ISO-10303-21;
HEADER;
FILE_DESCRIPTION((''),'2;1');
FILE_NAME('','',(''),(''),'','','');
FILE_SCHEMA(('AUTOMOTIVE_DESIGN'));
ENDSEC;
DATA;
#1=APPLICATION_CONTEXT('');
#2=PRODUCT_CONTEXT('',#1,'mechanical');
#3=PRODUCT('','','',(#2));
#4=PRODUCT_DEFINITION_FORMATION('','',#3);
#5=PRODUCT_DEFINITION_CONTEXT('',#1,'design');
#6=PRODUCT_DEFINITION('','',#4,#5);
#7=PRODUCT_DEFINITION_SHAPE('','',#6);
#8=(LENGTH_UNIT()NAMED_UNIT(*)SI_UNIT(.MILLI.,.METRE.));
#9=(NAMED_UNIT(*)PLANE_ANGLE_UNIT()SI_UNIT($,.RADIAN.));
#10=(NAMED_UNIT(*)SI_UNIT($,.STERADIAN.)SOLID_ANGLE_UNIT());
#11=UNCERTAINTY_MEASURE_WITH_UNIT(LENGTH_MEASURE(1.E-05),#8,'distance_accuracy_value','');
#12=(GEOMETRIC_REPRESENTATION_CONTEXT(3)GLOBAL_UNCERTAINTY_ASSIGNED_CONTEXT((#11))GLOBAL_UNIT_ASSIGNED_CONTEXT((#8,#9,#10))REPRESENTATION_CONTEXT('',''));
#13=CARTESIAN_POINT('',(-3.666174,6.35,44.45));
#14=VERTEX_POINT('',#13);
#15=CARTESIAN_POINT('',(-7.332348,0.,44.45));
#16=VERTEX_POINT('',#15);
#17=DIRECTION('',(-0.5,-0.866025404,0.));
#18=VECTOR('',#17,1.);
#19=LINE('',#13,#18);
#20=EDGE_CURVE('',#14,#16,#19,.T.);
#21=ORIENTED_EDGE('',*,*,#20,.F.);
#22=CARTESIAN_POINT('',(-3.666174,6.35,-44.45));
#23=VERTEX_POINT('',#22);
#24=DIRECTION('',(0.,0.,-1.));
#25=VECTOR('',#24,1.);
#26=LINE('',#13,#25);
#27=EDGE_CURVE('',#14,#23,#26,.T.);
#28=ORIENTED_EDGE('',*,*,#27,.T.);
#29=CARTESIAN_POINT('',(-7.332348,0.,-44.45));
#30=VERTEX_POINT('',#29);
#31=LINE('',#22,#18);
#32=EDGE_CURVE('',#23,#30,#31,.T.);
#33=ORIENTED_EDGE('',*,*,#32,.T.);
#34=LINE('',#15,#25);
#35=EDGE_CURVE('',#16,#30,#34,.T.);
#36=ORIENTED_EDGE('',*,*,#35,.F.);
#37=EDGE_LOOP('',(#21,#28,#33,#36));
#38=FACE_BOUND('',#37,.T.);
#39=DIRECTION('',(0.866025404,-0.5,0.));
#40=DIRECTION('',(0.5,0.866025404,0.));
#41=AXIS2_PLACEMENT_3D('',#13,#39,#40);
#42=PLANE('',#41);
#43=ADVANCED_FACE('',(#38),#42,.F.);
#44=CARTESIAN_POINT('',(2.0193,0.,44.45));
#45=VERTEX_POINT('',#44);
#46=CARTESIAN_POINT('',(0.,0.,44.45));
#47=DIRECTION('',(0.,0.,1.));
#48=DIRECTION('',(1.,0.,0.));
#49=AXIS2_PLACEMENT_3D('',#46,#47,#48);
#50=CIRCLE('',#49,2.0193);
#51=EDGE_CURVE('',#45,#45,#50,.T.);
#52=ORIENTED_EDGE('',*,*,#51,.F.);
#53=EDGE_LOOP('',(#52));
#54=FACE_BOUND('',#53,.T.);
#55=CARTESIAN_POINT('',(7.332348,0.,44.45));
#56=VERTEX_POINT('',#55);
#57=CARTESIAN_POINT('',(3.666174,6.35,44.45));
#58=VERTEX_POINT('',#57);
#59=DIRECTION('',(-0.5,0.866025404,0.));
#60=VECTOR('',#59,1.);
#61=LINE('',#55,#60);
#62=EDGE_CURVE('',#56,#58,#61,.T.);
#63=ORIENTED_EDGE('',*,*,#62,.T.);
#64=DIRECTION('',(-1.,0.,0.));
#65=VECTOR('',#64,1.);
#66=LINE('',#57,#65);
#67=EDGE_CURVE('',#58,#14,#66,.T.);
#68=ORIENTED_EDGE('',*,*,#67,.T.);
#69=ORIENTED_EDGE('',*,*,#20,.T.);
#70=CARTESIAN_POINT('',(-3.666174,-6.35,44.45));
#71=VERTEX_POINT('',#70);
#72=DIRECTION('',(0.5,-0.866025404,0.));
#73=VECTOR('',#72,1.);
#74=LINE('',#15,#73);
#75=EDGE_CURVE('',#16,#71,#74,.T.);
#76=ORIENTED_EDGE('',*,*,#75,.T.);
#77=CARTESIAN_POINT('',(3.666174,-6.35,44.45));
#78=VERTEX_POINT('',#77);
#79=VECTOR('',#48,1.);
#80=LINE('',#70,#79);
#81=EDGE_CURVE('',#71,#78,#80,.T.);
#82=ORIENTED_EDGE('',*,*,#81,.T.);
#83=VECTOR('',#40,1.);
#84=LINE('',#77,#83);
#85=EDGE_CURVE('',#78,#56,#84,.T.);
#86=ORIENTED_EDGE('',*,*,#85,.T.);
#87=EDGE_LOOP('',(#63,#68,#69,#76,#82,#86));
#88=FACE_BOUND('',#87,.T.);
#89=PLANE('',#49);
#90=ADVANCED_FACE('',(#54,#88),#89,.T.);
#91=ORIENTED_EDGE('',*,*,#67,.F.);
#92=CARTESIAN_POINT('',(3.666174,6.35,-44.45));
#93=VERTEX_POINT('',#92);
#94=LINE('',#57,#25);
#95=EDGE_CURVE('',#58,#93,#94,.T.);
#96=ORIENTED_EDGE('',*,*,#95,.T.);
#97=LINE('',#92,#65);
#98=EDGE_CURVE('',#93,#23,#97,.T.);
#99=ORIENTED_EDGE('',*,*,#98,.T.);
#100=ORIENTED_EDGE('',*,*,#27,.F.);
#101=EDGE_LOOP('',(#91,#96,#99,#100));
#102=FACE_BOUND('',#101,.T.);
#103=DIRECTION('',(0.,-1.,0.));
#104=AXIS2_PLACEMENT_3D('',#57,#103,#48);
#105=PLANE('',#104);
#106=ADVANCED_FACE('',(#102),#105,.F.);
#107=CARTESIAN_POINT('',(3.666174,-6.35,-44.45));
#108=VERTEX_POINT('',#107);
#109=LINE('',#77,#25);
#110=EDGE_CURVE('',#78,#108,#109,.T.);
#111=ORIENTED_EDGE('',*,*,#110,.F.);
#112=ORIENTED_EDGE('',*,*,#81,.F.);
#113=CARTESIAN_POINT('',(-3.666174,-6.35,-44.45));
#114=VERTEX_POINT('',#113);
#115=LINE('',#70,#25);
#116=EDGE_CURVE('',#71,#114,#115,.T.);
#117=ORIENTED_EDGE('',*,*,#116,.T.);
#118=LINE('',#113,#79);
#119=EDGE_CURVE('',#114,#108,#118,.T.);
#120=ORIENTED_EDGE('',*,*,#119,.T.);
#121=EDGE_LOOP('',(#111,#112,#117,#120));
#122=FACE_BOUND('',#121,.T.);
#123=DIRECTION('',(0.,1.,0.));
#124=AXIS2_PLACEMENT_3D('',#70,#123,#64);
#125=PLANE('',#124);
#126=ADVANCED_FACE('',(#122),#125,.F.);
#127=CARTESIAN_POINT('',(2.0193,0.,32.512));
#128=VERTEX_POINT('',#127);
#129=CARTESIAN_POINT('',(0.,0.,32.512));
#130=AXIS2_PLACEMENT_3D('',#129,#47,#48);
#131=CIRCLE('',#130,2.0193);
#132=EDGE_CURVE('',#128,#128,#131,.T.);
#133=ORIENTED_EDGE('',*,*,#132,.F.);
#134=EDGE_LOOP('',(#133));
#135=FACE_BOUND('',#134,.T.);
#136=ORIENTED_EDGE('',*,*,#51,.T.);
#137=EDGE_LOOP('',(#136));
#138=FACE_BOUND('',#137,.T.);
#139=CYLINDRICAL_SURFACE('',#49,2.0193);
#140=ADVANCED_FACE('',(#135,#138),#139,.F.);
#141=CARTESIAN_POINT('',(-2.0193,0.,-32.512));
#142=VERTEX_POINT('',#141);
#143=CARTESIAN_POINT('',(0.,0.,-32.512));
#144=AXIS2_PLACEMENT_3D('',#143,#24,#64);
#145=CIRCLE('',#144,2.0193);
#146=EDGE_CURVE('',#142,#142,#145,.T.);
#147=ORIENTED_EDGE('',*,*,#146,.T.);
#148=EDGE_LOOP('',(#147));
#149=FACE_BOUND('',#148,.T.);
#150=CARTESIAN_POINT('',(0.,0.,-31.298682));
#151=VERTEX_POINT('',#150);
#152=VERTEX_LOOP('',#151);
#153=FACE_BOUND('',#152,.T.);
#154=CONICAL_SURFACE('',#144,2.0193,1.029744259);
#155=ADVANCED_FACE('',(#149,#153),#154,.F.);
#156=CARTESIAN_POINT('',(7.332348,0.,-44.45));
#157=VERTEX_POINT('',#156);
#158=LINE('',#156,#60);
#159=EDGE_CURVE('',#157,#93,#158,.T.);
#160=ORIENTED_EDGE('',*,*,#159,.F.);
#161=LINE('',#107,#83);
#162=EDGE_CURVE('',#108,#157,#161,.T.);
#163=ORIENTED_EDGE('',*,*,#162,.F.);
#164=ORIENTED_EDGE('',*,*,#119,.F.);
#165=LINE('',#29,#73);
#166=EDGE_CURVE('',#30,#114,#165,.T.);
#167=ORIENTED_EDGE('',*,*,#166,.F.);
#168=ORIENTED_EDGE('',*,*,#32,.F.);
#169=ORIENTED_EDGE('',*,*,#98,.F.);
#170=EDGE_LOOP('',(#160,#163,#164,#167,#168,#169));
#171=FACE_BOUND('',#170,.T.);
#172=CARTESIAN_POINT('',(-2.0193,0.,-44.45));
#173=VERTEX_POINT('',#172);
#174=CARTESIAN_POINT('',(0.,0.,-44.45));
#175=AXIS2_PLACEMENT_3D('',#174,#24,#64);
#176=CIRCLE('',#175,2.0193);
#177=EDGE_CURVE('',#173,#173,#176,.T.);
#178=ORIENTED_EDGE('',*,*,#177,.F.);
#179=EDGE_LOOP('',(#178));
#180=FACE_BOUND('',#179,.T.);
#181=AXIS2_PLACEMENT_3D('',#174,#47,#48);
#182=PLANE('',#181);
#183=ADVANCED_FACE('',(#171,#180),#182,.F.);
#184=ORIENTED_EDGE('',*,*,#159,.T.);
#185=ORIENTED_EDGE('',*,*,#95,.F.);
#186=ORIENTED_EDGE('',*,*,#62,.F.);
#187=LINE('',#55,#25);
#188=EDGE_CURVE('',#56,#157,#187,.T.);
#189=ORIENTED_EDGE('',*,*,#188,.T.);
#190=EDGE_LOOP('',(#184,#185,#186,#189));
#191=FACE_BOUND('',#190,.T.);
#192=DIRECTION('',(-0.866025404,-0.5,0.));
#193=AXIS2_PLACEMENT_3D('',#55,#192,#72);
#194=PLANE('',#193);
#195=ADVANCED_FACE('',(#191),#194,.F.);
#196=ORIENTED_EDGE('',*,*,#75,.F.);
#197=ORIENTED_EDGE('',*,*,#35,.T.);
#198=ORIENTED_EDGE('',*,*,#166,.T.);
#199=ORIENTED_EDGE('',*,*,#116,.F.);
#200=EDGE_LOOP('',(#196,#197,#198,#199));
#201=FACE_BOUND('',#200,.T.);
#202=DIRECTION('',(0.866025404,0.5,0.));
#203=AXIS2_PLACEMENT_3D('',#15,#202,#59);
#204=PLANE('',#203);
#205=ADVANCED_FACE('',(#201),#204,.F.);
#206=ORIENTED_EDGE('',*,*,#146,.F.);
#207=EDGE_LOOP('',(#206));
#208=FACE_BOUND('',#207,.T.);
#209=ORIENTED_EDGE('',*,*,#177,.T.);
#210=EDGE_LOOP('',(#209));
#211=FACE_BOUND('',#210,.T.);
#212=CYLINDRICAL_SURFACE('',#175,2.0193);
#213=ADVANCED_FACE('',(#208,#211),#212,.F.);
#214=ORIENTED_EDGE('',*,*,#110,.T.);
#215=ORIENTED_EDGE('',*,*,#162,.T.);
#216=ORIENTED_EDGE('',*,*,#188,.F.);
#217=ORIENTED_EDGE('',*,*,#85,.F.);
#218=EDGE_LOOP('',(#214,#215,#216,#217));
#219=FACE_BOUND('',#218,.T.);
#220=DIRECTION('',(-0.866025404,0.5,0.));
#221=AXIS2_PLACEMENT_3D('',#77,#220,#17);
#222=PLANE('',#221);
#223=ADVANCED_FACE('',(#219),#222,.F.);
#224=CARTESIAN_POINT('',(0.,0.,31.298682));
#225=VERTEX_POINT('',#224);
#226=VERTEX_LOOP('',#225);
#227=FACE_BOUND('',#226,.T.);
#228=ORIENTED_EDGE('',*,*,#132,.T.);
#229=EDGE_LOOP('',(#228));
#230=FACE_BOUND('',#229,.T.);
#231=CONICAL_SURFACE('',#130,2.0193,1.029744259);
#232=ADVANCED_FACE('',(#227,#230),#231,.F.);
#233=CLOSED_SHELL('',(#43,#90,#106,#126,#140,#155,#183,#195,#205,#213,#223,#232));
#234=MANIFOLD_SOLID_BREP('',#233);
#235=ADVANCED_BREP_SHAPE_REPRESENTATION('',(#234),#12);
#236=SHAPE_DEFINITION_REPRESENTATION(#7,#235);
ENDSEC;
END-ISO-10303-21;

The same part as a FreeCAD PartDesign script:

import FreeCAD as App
import Part
import Sketcher

V = App.Vector
Q = App.Units.Quantity


def add_polygon(sketch, points):
    """Adds a closed chain of lines whose ends are joined by coincident constraints."""
    first, n = sketch.GeometryCount, len(points)
    for a, b in zip(points, points[1:] + points[:1]):
        sketch.addGeometry(Part.LineSegment(App.Vector(*a, 0), App.Vector(*b, 0)), False)
    for i in range(n):
        sketch.addConstraint(Sketcher.Constraint("Coincident", first + i, 2, first + (i + 1) % n, 1))

doc = App.newDocument("Part")
body = doc.addObject("PartDesign::Body", "Body")

# Sketch on XY plane
sketch1 = body.newObject("Sketcher::SketchObject", "Sketch")
sketch1.AttachmentSupport = (doc.getObject("XY_Plane"), [""])
sketch1.MapMode = "FlatFace"
add_polygon(sketch1, [(7, 0), (4, 6), (-4, 6), (-7, 0), (-4, -6), (4, -6)])  # lines 0-5
sketch1.addConstraint([
    Sketcher.Constraint("Horizontal", 1),
    Sketcher.Constraint("Horizontal", 4),
    Sketcher.Constraint("Symmetric", 0, 2, 3, 2, -1, 1),
    Sketcher.Constraint("Symmetric", 2, 2, 5, 2, -1, 1),
    Sketcher.Constraint("PointOnObject", 2, 2, -1),
    Sketcher.Constraint("Parallel", 2, 5),
    Sketcher.Constraint("Vertical", 1, 2, 3, 2),
    Sketcher.Constraint("Angle", 0, Q("120 deg")),
    Sketcher.Constraint("DistanceY", 3, 2, 1, 2, Q("0.5 in")),
    Sketcher.Constraint("DistanceX", 1, 2, 1, 1, Q("7.332348 mm")),
])
pad1 = body.newObject("PartDesign::Pad", "Pad")
pad1.Profile = sketch1
pad1.Length = Q("3.5 in")
pad1.Midplane = True

# Sketch on XY plane
sketch2 = body.newObject("Sketcher::SketchObject", "Sketch001")
sketch2.AttachmentSupport = (doc.getObject("XY_Plane"), [""])
sketch2.MapMode = "FlatFace"
sketch2.AttachmentOffset = App.Placement(V(0, 0, 1.75 * 25.4), App.Rotation())
sketch2.addGeometry(Part.Circle(V(0, 0, 0), V(0, 0, 1), 2), False)
sketch2.addConstraint([
    Sketcher.Constraint("Coincident", 0, 3, -1, 1),
    Sketcher.Constraint("Diameter", 0, Q("0.159 in")),
])
doc.recompute()
hole = body.newObject("PartDesign::Hole", "Hole")
hole.Profile = sketch2
hole.ThreadType = "None"
hole.Diameter = Q("0.159 in")
hole.DepthType = "Dimension"
hole.Depth = Q("0.47 in")
hole.DrillPoint = "Angled"
hole.DrillPointAngle = 118

# Sketch on XY plane
sketch3 = body.newObject("Sketcher::SketchObject", "Sketch002")
sketch3.AttachmentSupport = (doc.getObject("XY_Plane"), [""])
sketch3.MapMode = "FlatFace"
sketch3.AttachmentOffset = App.Placement(V(0, 0, -1.75 * 25.4), App.Rotation())
sketch3.addGeometry(Part.Circle(V(0, 0, 0), V(0, 0, 1), 2), False)
sketch3.addConstraint([
    Sketcher.Constraint("Coincident", 0, 3, -1, 1),
    Sketcher.Constraint("Diameter", 0, Q("0.159 in")),
])
doc.recompute()
hole2 = body.newObject("PartDesign::Hole", "Hole001")
hole2.Profile = sketch3
hole2.ThreadType = "None"
hole2.Diameter = Q("0.159 in")
hole2.DepthType = "Dimension"
hole2.Depth = Q("0.47 in")
hole2.DrillPoint = "Angled"
hole2.DrillPointAngle = 118
hole2.Reversed = True

doc.recompute()
